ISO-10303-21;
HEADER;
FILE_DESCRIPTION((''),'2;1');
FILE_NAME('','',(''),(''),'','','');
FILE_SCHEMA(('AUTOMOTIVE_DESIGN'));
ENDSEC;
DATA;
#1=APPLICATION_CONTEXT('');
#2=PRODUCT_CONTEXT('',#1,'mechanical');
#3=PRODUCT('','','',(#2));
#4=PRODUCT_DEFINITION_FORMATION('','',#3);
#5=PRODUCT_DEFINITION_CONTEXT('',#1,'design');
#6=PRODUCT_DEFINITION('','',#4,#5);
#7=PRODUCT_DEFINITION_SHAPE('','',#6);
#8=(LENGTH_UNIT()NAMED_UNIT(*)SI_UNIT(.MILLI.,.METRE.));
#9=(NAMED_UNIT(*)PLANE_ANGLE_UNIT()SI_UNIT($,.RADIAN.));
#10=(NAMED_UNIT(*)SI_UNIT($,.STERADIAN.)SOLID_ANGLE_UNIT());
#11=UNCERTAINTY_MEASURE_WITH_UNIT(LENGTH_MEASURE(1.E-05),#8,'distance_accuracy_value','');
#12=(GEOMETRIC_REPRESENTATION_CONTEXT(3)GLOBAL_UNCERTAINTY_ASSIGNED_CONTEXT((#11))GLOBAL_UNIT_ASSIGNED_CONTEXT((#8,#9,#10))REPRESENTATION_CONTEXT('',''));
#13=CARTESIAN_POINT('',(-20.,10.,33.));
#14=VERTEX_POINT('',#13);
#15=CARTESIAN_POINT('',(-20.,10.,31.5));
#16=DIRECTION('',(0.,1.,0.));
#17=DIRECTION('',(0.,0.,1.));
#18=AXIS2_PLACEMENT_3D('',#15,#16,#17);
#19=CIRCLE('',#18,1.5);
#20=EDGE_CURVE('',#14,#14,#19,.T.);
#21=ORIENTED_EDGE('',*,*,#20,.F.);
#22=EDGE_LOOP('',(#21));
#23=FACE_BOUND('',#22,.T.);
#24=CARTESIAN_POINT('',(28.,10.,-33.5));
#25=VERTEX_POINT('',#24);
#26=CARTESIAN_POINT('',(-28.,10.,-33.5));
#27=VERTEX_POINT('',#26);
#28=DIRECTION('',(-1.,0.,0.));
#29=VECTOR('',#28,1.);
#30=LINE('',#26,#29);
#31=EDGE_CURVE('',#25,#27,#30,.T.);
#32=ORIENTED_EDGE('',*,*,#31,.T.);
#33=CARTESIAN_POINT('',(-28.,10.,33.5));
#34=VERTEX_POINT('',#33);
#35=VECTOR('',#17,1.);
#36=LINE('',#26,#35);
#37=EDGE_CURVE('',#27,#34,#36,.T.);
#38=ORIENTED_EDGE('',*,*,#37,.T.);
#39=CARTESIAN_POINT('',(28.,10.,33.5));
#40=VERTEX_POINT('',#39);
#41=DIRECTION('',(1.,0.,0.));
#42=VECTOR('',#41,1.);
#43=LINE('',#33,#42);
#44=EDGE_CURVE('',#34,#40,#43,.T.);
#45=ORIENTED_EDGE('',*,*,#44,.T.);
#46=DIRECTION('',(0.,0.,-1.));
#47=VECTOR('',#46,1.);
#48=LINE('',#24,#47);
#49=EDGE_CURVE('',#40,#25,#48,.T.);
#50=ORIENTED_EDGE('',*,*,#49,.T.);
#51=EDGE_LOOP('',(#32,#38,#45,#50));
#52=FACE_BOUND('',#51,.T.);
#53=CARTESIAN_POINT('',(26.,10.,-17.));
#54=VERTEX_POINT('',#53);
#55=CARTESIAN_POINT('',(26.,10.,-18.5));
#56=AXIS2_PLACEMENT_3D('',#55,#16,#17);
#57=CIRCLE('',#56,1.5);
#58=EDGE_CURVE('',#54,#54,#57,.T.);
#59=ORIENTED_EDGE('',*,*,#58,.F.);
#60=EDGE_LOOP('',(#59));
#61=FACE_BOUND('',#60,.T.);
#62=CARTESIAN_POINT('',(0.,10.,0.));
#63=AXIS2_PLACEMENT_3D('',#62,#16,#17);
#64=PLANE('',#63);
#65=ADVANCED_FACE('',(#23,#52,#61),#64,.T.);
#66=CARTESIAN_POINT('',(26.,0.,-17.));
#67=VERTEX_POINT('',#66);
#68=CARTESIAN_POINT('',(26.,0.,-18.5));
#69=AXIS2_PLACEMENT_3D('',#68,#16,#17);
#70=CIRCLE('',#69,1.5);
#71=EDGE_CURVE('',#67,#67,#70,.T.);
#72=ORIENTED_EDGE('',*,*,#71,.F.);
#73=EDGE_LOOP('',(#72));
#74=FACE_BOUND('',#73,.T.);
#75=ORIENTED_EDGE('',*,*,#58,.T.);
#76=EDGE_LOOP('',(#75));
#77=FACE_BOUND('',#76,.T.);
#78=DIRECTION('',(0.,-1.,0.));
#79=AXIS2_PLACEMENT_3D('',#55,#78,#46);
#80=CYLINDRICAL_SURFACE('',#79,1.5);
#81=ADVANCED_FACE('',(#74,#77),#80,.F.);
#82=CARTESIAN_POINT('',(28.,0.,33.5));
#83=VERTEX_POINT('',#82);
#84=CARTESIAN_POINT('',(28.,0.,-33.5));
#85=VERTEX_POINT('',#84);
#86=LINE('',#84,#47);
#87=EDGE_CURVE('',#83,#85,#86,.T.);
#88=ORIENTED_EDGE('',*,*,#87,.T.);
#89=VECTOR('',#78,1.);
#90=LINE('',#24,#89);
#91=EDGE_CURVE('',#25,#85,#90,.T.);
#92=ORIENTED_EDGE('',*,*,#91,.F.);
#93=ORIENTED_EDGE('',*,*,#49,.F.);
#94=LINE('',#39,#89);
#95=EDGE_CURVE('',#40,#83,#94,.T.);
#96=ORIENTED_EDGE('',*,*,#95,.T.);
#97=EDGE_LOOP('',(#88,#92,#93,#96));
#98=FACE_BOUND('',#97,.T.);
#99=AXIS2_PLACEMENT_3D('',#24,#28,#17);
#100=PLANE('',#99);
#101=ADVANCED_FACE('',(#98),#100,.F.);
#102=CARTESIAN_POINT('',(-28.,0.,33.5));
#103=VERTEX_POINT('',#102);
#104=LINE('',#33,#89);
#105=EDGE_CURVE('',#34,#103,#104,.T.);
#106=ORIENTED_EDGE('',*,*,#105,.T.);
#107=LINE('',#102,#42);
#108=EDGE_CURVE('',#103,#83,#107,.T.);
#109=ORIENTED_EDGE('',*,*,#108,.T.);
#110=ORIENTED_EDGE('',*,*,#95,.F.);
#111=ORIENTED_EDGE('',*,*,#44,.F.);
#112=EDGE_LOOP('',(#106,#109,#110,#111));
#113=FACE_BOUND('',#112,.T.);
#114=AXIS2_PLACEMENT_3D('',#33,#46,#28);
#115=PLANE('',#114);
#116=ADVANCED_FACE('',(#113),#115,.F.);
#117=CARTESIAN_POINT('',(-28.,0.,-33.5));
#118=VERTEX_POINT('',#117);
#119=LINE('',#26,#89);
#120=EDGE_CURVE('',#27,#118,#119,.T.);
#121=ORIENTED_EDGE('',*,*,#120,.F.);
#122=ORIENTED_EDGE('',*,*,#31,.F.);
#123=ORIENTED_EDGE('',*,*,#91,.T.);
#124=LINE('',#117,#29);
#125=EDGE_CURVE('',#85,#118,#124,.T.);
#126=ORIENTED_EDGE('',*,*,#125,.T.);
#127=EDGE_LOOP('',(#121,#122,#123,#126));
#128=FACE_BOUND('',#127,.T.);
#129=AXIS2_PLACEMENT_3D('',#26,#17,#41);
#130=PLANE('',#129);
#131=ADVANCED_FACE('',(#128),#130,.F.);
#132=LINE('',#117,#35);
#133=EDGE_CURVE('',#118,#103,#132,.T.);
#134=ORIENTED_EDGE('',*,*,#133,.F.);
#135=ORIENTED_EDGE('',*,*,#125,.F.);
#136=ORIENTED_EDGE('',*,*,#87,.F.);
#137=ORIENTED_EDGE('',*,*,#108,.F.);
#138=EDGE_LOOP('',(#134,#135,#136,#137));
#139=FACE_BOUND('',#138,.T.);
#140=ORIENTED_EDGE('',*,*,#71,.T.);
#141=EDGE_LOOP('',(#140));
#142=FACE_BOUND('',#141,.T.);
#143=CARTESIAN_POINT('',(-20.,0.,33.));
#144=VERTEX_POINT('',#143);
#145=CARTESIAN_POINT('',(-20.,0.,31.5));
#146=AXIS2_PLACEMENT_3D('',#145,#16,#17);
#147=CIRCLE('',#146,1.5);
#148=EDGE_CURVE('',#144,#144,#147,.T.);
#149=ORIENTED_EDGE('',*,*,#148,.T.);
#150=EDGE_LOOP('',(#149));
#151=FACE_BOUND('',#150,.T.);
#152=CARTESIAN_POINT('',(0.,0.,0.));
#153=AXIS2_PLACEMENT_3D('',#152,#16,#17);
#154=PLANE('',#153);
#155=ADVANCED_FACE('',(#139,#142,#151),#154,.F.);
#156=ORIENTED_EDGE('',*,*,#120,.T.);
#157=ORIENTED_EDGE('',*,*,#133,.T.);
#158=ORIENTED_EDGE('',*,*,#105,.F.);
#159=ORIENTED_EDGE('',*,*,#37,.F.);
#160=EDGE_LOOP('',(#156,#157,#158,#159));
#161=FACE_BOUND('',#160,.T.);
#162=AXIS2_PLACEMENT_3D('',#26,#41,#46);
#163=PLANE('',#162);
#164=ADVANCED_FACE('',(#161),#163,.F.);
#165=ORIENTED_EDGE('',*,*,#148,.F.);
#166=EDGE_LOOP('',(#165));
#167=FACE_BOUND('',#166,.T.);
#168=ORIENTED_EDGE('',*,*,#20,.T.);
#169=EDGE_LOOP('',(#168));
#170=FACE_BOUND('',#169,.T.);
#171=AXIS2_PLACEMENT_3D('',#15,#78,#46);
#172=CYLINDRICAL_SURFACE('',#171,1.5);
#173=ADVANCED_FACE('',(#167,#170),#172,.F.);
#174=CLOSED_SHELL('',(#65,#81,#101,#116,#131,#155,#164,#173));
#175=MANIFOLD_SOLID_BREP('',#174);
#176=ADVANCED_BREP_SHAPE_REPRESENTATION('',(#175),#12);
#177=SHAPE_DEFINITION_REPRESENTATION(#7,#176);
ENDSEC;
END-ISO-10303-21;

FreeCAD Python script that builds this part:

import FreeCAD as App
import Part
import Sketcher

V = App.Vector
Q = App.Units.Quantity


def add_polygon(sketch, points):
    """Adds a closed chain of lines whose ends are joined by coincident constraints."""
    first, n = sketch.GeometryCount, len(points)
    for a, b in zip(points, points[1:] + points[:1]):
        sketch.addGeometry(Part.LineSegment(App.Vector(*a, 0), App.Vector(*b, 0)), False)
    for i in range(n):
        sketch.addConstraint(Sketcher.Constraint("Coincident", first + i, 2, first + (i + 1) % n, 1))

doc = App.newDocument("Part")
params = doc.addObject("Spreadsheet::Sheet", "Params")
for row, (alias, value) in enumerate([
    ("sketch1_diameter", "3 mm"),
    ("sketch1_width", "56 mm"),
    ("sketch1_height", "67 mm"),
    ("pad1_length", "10 mm"),
], start=1):
    params.set(f"A{row}", alias)
    params.set(f"B{row}", "=" + value)
    params.setAlias(f"B{row}", alias)

body = doc.addObject("PartDesign::Body", "Body")

sketch1 = doc.addObject("Sketcher::SketchObject", "Sketch")
body.addObject(sketch1)
sketch1.AttachmentSupport = (doc.XZ_Plane, [""])
sketch1.MapMode = "FlatFace"
add_polygon(sketch1, [(-28, -33.5), (-28, 33.5), (28, 33.5), (28, -33.5)])
sketch1.addGeometry(Part.Circle(V(-20, 31.5, 0), V(0, 0, 1), 1.5), False)
sketch1.addGeometry(Part.Circle(V(26, -18.5, 0), V(0, 0, 1), 1.5), False)
sketch1.addConstraint([
    Sketcher.Constraint("Vertical", 0),
    Sketcher.Constraint("Horizontal", 1),
    Sketcher.Constraint("Vertical", 2),
    Sketcher.Constraint("Horizontal", 3),
    Sketcher.Constraint("Equal", 4, 5),
    Sketcher.Constraint("Symmetric", 0, 2, 2, 2, -1, 1),
    Sketcher.Constraint("Diameter", 4, Q("3 mm")),
    Sketcher.Constraint("DistanceX", 1, 1, 1, 2, Q("56 mm")),
    Sketcher.Constraint("DistanceY", 0, 1, 0, 2, Q("67 mm")),
    Sketcher.Constraint("DistanceX", 4, 3, -1, 1, Q("20 mm")),
    Sketcher.Constraint("DistanceX", -1, 1, 5, 3, Q("26 mm")),
    Sketcher.Constraint("DistanceY", 5, 3, 4, 3, Q("50 mm")),
    Sketcher.Constraint("DistanceY", 4, 3, 0, 2, Q("2 mm")),
])
sketch1.setExpression("Constraints[10]", "Params.sketch1_diameter")
sketch1.setExpression("Constraints[11]", "Params.sketch1_width")
sketch1.setExpression("Constraints[12]", "Params.sketch1_height")
pad1 = doc.addObject("PartDesign::Pad", "Pad")
body.addObject(pad1)
pad1.Profile = sketch1
pad1.setExpression("Length", "Params.pad1_length")
pad1.Reversed = True

doc.recompute()
